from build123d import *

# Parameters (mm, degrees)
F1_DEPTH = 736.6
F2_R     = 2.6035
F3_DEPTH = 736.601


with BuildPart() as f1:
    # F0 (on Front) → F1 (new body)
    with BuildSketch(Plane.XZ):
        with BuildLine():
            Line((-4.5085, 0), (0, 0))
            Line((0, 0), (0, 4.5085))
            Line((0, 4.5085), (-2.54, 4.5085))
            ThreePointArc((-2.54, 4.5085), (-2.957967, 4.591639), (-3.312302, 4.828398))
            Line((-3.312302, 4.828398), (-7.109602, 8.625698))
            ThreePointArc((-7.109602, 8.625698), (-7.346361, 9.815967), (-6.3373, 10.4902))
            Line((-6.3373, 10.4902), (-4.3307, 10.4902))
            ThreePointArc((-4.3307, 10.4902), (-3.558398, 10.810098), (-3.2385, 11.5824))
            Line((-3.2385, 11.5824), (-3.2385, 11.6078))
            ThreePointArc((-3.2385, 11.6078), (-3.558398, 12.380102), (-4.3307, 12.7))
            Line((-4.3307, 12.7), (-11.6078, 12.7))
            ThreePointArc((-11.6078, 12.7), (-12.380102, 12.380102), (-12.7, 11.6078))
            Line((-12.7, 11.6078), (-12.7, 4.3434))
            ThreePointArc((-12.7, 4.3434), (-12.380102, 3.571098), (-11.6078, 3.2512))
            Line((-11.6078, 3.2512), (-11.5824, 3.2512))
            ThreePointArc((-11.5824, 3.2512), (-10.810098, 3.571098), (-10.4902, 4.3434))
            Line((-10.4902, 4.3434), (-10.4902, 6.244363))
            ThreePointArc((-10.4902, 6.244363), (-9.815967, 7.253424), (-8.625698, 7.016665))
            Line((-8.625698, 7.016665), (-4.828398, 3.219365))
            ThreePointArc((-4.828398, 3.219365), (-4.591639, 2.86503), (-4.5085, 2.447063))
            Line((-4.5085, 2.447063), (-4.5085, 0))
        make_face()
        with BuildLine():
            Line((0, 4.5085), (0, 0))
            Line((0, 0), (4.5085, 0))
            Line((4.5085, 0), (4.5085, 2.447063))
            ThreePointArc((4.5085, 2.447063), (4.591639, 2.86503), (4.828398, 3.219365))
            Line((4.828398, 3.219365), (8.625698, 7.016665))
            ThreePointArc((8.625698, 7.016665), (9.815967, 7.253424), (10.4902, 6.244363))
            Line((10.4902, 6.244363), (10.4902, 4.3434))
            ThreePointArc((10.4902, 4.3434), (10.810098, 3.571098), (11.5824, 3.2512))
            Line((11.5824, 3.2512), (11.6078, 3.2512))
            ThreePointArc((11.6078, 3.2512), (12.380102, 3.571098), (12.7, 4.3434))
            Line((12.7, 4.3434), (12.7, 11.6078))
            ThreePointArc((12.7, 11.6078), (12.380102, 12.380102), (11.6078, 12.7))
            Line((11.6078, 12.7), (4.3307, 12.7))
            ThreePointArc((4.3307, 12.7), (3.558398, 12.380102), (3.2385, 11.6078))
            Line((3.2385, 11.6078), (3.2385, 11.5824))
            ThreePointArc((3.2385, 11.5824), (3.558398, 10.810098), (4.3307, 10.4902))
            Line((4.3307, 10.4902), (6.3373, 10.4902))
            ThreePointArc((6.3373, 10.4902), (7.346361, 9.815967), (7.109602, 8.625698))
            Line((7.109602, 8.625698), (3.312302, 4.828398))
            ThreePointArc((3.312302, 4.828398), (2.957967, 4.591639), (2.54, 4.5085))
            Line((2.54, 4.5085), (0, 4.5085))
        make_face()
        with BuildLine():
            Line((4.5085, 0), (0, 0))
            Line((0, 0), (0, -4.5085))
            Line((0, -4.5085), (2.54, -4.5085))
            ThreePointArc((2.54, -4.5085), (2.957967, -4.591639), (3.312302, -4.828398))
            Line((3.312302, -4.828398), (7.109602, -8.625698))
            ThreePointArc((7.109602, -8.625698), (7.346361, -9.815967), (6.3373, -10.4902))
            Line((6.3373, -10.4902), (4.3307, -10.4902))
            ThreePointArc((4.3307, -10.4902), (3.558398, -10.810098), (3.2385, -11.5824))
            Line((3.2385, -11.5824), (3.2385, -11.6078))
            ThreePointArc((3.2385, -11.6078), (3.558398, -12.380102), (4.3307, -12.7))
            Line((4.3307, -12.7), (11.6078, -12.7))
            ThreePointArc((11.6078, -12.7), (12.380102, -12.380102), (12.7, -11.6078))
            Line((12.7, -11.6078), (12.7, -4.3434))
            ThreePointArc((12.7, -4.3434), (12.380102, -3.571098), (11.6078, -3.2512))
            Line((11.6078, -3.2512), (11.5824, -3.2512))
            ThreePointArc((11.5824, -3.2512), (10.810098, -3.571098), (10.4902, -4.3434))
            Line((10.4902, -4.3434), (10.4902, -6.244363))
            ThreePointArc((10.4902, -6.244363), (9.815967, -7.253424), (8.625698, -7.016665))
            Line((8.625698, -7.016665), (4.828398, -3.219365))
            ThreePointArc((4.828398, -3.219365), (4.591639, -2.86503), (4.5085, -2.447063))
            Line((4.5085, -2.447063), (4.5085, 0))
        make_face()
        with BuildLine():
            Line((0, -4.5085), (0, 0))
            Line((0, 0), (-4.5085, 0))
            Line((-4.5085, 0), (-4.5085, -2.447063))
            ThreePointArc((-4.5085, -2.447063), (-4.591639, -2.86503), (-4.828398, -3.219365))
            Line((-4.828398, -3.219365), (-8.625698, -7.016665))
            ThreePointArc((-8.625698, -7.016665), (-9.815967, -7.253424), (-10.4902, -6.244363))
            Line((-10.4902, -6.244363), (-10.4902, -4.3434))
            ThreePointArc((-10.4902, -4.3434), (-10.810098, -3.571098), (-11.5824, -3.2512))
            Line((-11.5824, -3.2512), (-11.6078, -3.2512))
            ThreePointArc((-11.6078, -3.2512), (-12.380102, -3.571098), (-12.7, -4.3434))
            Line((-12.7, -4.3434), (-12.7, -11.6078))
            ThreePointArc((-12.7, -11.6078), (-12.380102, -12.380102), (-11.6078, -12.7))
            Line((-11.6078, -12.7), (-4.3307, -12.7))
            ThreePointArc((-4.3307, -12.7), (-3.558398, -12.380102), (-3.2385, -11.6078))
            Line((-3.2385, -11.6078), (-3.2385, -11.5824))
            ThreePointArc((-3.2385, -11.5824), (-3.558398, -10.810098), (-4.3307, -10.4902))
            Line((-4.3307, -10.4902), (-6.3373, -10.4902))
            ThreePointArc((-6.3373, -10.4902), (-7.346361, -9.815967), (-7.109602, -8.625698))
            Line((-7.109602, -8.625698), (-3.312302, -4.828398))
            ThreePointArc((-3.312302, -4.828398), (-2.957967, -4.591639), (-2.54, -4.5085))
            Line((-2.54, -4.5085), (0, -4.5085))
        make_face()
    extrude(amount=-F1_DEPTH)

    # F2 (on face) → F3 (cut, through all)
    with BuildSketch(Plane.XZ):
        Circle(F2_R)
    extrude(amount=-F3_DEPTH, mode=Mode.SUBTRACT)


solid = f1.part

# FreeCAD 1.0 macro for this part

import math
import FreeCAD as App
import Part
import Sketcher
from FreeCAD import Vector
Q = App.Units.Quantity

doc = App.newDocument("Part")
body = doc.addObject("PartDesign::Body", "Body")

sketch1 = doc.addObject("Sketcher::SketchObject", "Sketch")
body.addObject(sketch1)
sketch1.AttachmentSupport = (doc.XZ_Plane, [""])
sketch1.MapMode = "FlatFace"
sketch1.addGeometry([
    Part.ArcOfCircle(Part.Circle(Vector(2.54, -5.601, 0), Vector(0, 0, 1), 1.092), math.radians(45), math.radians(90)),
    Part.LineSegment(Vector(3.312, -4.828, 0), Vector(7.11, -8.626, 0)),
    Part.ArcOfCircle(Part.Circle(Vector(6.337, -9.398, 0), Vector(0, 0, 1), 1.092), math.radians(-90), math.radians(45)),
    Part.LineSegment(Vector(6.337, -10.49, 0), Vector(4.331, -10.49, 0)),
    Part.ArcOfCircle(Part.Circle(Vector(4.331, -11.582, 0), Vector(0, 0, 1), 1.092), math.radians(90), math.radians(180)),
    Part.LineSegment(Vector(3.239, -11.582, 0), Vector(3.239, -11.608, 0)),
    Part.ArcOfCircle(Part.Circle(Vector(4.331, -11.608, 0), Vector(0, 0, 1), 1.092), math.radians(-180), math.radians(-90)),
    Part.LineSegment(Vector(4.331, -12.7, 0), Vector(11.608, -12.7, 0)),
    Part.ArcOfCircle(Part.Circle(Vector(11.608, -11.608, 0), Vector(0, 0, 1), 1.092), math.radians(-90), math.radians(0)),
    Part.LineSegment(Vector(12.7, -11.608, 0), Vector(12.7, -4.343, 0)),
    Part.ArcOfCircle(Part.Circle(Vector(11.608, -4.343, 0), Vector(0, 0, 1), 1.092), math.radians(0), math.radians(90)),
    Part.LineSegment(Vector(11.608, -3.251, 0), Vector(11.582, -3.251, 0)),
    Part.ArcOfCircle(Part.Circle(Vector(11.582, -4.343, 0), Vector(0, 0, 1), 1.092), math.radians(90), math.radians(180)),
    Part.LineSegment(Vector(10.49, -4.343, 0), Vector(10.49, -6.244, 0)),
    Part.ArcOfCircle(Part.Circle(Vector(9.398, -6.244, 0), Vector(0, 0, 1), 1.092), math.radians(-135), math.radians(0)),
    Part.LineSegment(Vector(8.626, -7.017, 0), Vector(4.828, -3.219, 0)),
    Part.ArcOfCircle(Part.Circle(Vector(5.601, -2.447, 0), Vector(0, 0, 1), 1.092), math.radians(-180), math.radians(-135)),
    Part.LineSegment(Vector(4.508, -2.447, 0), Vector(4.508, 2.447, 0)),
    Part.ArcOfCircle(Part.Circle(Vector(5.601, 2.447, 0), Vector(0, 0, 1), 1.092), math.radians(135), math.radians(180)),
    Part.LineSegment(Vector(4.828, 3.219, 0), Vector(8.626, 7.017, 0)),
    Part.ArcOfCircle(Part.Circle(Vector(9.398, 6.244, 0), Vector(0, 0, 1), 1.092), math.radians(0), math.radians(135)),
    Part.LineSegment(Vector(10.49, 6.244, 0), Vector(10.49, 4.343, 0)),
    Part.ArcOfCircle(Part.Circle(Vector(11.582, 4.343, 0), Vector(0, 0, 1), 1.092), math.radians(-180), math.radians(-90)),
    Part.LineSegment(Vector(11.582, 3.251, 0), Vector(11.608, 3.251, 0)),
    Part.ArcOfCircle(Part.Circle(Vector(11.608, 4.343, 0), Vector(0, 0, 1), 1.092), math.radians(-90), math.radians(0)),
    Part.LineSegment(Vector(12.7, 4.343, 0), Vector(12.7, 11.608, 0)),
    Part.ArcOfCircle(Part.Circle(Vector(11.608, 11.608, 0), Vector(0, 0, 1), 1.092), math.radians(0), math.radians(90)),
    Part.LineSegment(Vector(11.608, 12.7, 0), Vector(4.331, 12.7, 0)),
    Part.ArcOfCircle(Part.Circle(Vector(4.331, 11.608, 0), Vector(0, 0, 1), 1.092), math.radians(90), math.radians(180)),
    Part.LineSegment(Vector(3.239, 11.608, 0), Vector(3.239, 11.582, 0)),
    Part.ArcOfCircle(Part.Circle(Vector(4.331, 11.582, 0), Vector(0, 0, 1), 1.092), math.radians(-180), math.radians(-90)),
    Part.LineSegment(Vector(4.331, 10.49, 0), Vector(6.337, 10.49, 0)),
    Part.ArcOfCircle(Part.Circle(Vector(6.337, 9.398, 0), Vector(0, 0, 1), 1.092), math.radians(-45), math.radians(90)),
    Part.LineSegment(Vector(7.11, 8.626, 0), Vector(3.312, 4.828, 0)),
    Part.ArcOfCircle(Part.Circle(Vector(2.54, 5.601, 0), Vector(0, 0, 1), 1.092), math.radians(-90), math.radians(-45)),
    Part.LineSegment(Vector(2.54, 4.508, 0), Vector(-2.54, 4.508, 0)),
    Part.ArcOfCircle(Part.Circle(Vector(-2.54, 5.601, 0), Vector(0, 0, 1), 1.092), math.radians(-135), math.radians(-90)),
    Part.LineSegment(Vector(-3.312, 4.828, 0), Vector(-7.11, 8.626, 0)),
    Part.ArcOfCircle(Part.Circle(Vector(-6.337, 9.398, 0), Vector(0, 0, 1), 1.092), math.radians(90), math.radians(225)),
    Part.LineSegment(Vector(-6.337, 10.49, 0), Vector(-4.331, 10.49, 0)),
    Part.ArcOfCircle(Part.Circle(Vector(-4.331, 11.582, 0), Vector(0, 0, 1), 1.092), math.radians(-90), math.radians(0)),
    Part.LineSegment(Vector(-3.239, 11.582, 0), Vector(-3.239, 11.608, 0)),
    Part.ArcOfCircle(Part.Circle(Vector(-4.331, 11.608, 0), Vector(0, 0, 1), 1.092), math.radians(0), math.radians(90)),
    Part.LineSegment(Vector(-4.331, 12.7, 0), Vector(-11.608, 12.7, 0)),
    Part.ArcOfCircle(Part.Circle(Vector(-11.608, 11.608, 0), Vector(0, 0, 1), 1.092), math.radians(90), math.radians(180)),
    Part.LineSegment(Vector(-12.7, 11.608, 0), Vector(-12.7, 4.343, 0)),
    Part.ArcOfCircle(Part.Circle(Vector(-11.608, 4.343, 0), Vector(0, 0, 1), 1.092), math.radians(-180), math.radians(-90)),
    Part.LineSegment(Vector(-11.608, 3.251, 0), Vector(-11.582, 3.251, 0)),
    Part.ArcOfCircle(Part.Circle(Vector(-11.582, 4.343, 0), Vector(0, 0, 1), 1.092), math.radians(-90), math.radians(0)),
    Part.LineSegment(Vector(-10.49, 4.343, 0), Vector(-10.49, 6.244, 0)),
    Part.ArcOfCircle(Part.Circle(Vector(-9.398, 6.244, 0), Vector(0, 0, 1), 1.092), math.radians(45), math.radians(180)),
    Part.LineSegment(Vector(-8.626, 7.017, 0), Vector(-4.828, 3.219, 0)),
    Part.ArcOfCircle(Part.Circle(Vector(-5.601, 2.447, 0), Vector(0, 0, 1), 1.092), math.radians(0), math.radians(45)),
    Part.LineSegment(Vector(-4.508, 2.447, 0), Vector(-4.508, -2.447, 0)),
    Part.ArcOfCircle(Part.Circle(Vector(-5.601, -2.447, 0), Vector(0, 0, 1), 1.092), math.radians(-45), math.radians(0)),
    Part.LineSegment(Vector(-4.828, -3.219, 0), Vector(-8.626, -7.017, 0)),
    Part.ArcOfCircle(Part.Circle(Vector(-9.398, -6.244, 0), Vector(0, 0, 1), 1.092), math.radians(-180), math.radians(-45)),
    Part.LineSegment(Vector(-10.49, -6.244, 0), Vector(-10.49, -4.343, 0)),
    Part.ArcOfCircle(Part.Circle(Vector(-11.582, -4.343, 0), Vector(0, 0, 1), 1.092), math.radians(0), math.radians(90)),
    Part.LineSegment(Vector(-11.582, -3.251, 0), Vector(-11.608, -3.251, 0)),
    Part.ArcOfCircle(Part.Circle(Vector(-11.608, -4.343, 0), Vector(0, 0, 1), 1.092), math.radians(90), math.radians(180)),
    Part.LineSegment(Vector(-12.7, -4.343, 0), Vector(-12.7, -11.608, 0)),
    Part.ArcOfCircle(Part.Circle(Vector(-11.608, -11.608, 0), Vector(0, 0, 1), 1.092), math.radians(-180), math.radians(-90)),
    Part.LineSegment(Vector(-11.608, -12.7, 0), Vector(-4.331, -12.7, 0)),
    Part.ArcOfCircle(Part.Circle(Vector(-4.331, -11.608, 0), Vector(0, 0, 1), 1.092), math.radians(-90), math.radians(0)),
    Part.LineSegment(Vector(-3.239, -11.608, 0), Vector(-3.239, -11.582, 0)),
    Part.ArcOfCircle(Part.Circle(Vector(-4.331, -11.582, 0), Vector(0, 0, 1), 1.092), math.radians(0), math.radians(90)),
    Part.LineSegment(Vector(-4.331, -10.49, 0), Vector(-6.337, -10.49, 0)),
    Part.ArcOfCircle(Part.Circle(Vector(-6.337, -9.398, 0), Vector(0, 0, 1), 1.092), math.radians(135), math.radians(270)),
    Part.LineSegment(Vector(-7.11, -8.626, 0), Vector(-3.312, -4.828, 0)),
    Part.ArcOfCircle(Part.Circle(Vector(-2.54, -5.601, 0), Vector(0, 0, 1), 1.092), math.radians(90), math.radians(135)),
    Part.LineSegment(Vector(-2.54, -4.508, 0), Vector(2.54, -4.508, 0)),
], False)
sketch1.addConstraint([
    Sketcher.Constraint("Tangent", 0, 1, 1, 1),
    Sketcher.Constraint("Tangent", 1, 2, 2, 2),
    Sketcher.Constraint("Tangent", 2, 1, 3, 1),
    Sketcher.Constraint("Tangent", 3, 2, 4, 1),
    Sketcher.Constraint("Tangent", 4, 2, 5, 1),
    Sketcher.Constraint("Tangent", 5, 2, 6, 1),
    Sketcher.Constraint("Tangent", 6, 2, 7, 1),
    Sketcher.Constraint("Tangent", 7, 2, 8, 1),
    Sketcher.Constraint("Tangent", 8, 2, 9, 1),
    Sketcher.Constraint("Tangent", 9, 2, 10, 1),
    Sketcher.Constraint("Tangent", 10, 2, 11, 1),
    Sketcher.Constraint("Tangent", 11, 2, 12, 1),
    Sketcher.Constraint("Tangent", 12, 2, 13, 1),
    Sketcher.Constraint("Tangent", 13, 2, 14, 2),
    Sketcher.Constraint("Tangent", 14, 1, 15, 1),
    Sketcher.Constraint("Tangent", 15, 2, 16, 2),
    Sketcher.Constraint("Tangent", 16, 1, 17, 1),
    Sketcher.Constraint("Tangent", 17, 2, 18, 2),
    Sketcher.Constraint("Tangent", 18, 1, 19, 1),
    Sketcher.Constraint("Tangent", 19, 2, 20, 2),
    Sketcher.Constraint("Tangent", 20, 1, 21, 1),
    Sketcher.Constraint("Tangent", 21, 2, 22, 1),
    Sketcher.Constraint("Tangent", 22, 2, 23, 1),
    Sketcher.Constraint("Tangent", 23, 2, 24, 1),
    Sketcher.Constraint("Tangent", 24, 2, 25, 1),
    Sketcher.Constraint("Tangent", 25, 2, 26, 1),
    Sketcher.Constraint("Tangent", 26, 2, 27, 1),
    Sketcher.Constraint("Tangent", 27, 2, 28, 1),
    Sketcher.Constraint("Tangent", 28, 2, 29, 1),
    Sketcher.Constraint("Tangent", 29, 2, 30, 1),
    Sketcher.Constraint("Tangent", 30, 2, 31, 1),
    Sketcher.Constraint("Tangent", 31, 2, 32, 2),
    Sketcher.Constraint("Tangent", 32, 1, 33, 1),
    Sketcher.Constraint("Tangent", 33, 2, 34, 2),
    Sketcher.Constraint("Tangent", 34, 1, 35, 1),
    Sketcher.Constraint("Tangent", 35, 2, 36, 2),
    Sketcher.Constraint("Tangent", 36, 1, 37, 1),
    Sketcher.Constraint("Tangent", 37, 2, 38, 2),
    Sketcher.Constraint("Tangent", 38, 1, 39, 1),
    Sketcher.Constraint("Tangent", 39, 2, 40, 1),
    Sketcher.Constraint("Tangent", 40, 2, 41, 1),
    Sketcher.Constraint("Tangent", 41, 2, 42, 1),
    Sketcher.Constraint("Tangent", 42, 2, 43, 1),
    Sketcher.Constraint("Tangent", 43, 2, 44, 1),
    Sketcher.Constraint("Tangent", 44, 2, 45, 1),
    Sketcher.Constraint("Tangent", 45, 2, 46, 1),
    Sketcher.Constraint("Tangent", 46, 2, 47, 1),
    Sketcher.Constraint("Tangent", 47, 2, 48, 1),
    Sketcher.Constraint("Tangent", 48, 2, 49, 1),
    Sketcher.Constraint("Tangent", 49, 2, 50, 2),
    Sketcher.Constraint("Tangent", 50, 1, 51, 1),
    Sketcher.Constraint("Tangent", 51, 2, 52, 2),
    Sketcher.Constraint("Tangent", 52, 1, 53, 1),
    Sketcher.Constraint("Tangent", 53, 2, 54, 2),
    Sketcher.Constraint("Tangent", 54, 1, 55, 1),
    Sketcher.Constraint("Tangent", 55, 2, 56, 2),
    Sketcher.Constraint("Tangent", 56, 1, 57, 1),
    Sketcher.Constraint("Tangent", 57, 2, 58, 1),
    Sketcher.Constraint("Tangent", 58, 2, 59, 1),
    Sketcher.Constraint("Tangent", 59, 2, 60, 1),
    Sketcher.Constraint("Tangent", 60, 2, 61, 1),
    Sketcher.Constraint("Tangent", 61, 2, 62, 1),
    Sketcher.Constraint("Tangent", 62, 2, 63, 1),
    Sketcher.Constraint("Tangent", 63, 2, 64, 1),
    Sketcher.Constraint("Tangent", 64, 2, 65, 1),
    Sketcher.Constraint("Tangent", 65, 2, 66, 1),
    Sketcher.Constraint("Tangent", 66, 2, 67, 1),
    Sketcher.Constraint("Tangent", 67, 2, 68, 2),
    Sketcher.Constraint("Tangent", 68, 1, 69, 1),
    Sketcher.Constraint("Tangent", 69, 2, 70, 2),
    Sketcher.Constraint("Tangent", 70, 1, 71, 1),
    Sketcher.Constraint("Tangent", 71, 2, 0, 2),
    Sketcher.Constraint("Horizontal", 3),
    Sketcher.Constraint("Vertical", 5),
    Sketcher.Constraint("Horizontal", 7),
    Sketcher.Constraint("Vertical", 9),
    Sketcher.Constraint("Horizontal", 11),
    Sketcher.Constraint("Vertical", 13),
    Sketcher.Constraint("Vertical", 17),
    Sketcher.Constraint("Vertical", 21),
    Sketcher.Constraint("Horizontal", 23),
    Sketcher.Constraint("Vertical", 25),
    Sketcher.Constraint("Horizontal", 27),
    Sketcher.Constraint("Vertical", 29),
    Sketcher.Constraint("Horizontal", 31),
    Sketcher.Constraint("Horizontal", 35),
    Sketcher.Constraint("Horizontal", 39),
    Sketcher.Constraint("Vertical", 41),
    Sketcher.Constraint("Horizontal", 43),
    Sketcher.Constraint("Vertical", 45),
    Sketcher.Constraint("Horizontal", 47),
    Sketcher.Constraint("Vertical", 49),
    Sketcher.Constraint("Vertical", 53),
    Sketcher.Constraint("Vertical", 57),
    Sketcher.Constraint("Horizontal", 59),
    Sketcher.Constraint("Vertical", 61),
    Sketcher.Constraint("Horizontal", 63),
    Sketcher.Constraint("Vertical", 65),
    Sketcher.Constraint("Horizontal", 67),
    Sketcher.Constraint("Horizontal", 71),
    Sketcher.Constraint("Equal", 0, 2),
    Sketcher.Constraint("Equal", 2, 4),
    Sketcher.Constraint("Equal", 4, 6),
    Sketcher.Constraint("Equal", 6, 8),
    Sketcher.Constraint("Equal", 8, 10),
    Sketcher.Constraint("Equal", 10, 12),
    Sketcher.Constraint("Equal", 12, 14),
    Sketcher.Constraint("Equal", 14, 16),
    Sketcher.Constraint("Equal", 16, 18),
    Sketcher.Constraint("Equal", 18, 20),
    Sketcher.Constraint("Equal", 20, 22),
    Sketcher.Constraint("Equal", 22, 24),
    Sketcher.Constraint("Equal", 24, 26),
    Sketcher.Constraint("Equal", 26, 28),
    Sketcher.Constraint("Equal", 28, 30),
    Sketcher.Constraint("Equal", 30, 32),
    Sketcher.Constraint("Equal", 32, 34),
    Sketcher.Constraint("Equal", 34, 36),
    Sketcher.Constraint("Equal", 36, 38),
    Sketcher.Constraint("Equal", 38, 40),
    Sketcher.Constraint("Equal", 40, 42),
    Sketcher.Constraint("Equal", 42, 44),
    Sketcher.Constraint("Equal", 44, 46),
    Sketcher.Constraint("Equal", 46, 48),
    Sketcher.Constraint("Equal", 48, 50),
    Sketcher.Constraint("Equal", 50, 52),
    Sketcher.Constraint("Equal", 52, 54),
    Sketcher.Constraint("Equal", 54, 56),
    Sketcher.Constraint("Equal", 56, 58),
    Sketcher.Constraint("Equal", 58, 60),
    Sketcher.Constraint("Equal", 60, 62),
    Sketcher.Constraint("Equal", 62, 64),
    Sketcher.Constraint("Equal", 64, 66),
    Sketcher.Constraint("Equal", 66, 68),
    Sketcher.Constraint("Equal", 68, 70),
    Sketcher.Constraint("Symmetric", 0, 3, 36, 3, -1, 1),
    Sketcher.Constraint("Symmetric", 2, 3, 38, 3, -1, 1),
    Sketcher.Constraint("Symmetric", 6, 3, 42, 3, -1, 1),
    Sketcher.Constraint("Symmetric", 10, 3, 46, 3, -1, 1),
    Sketcher.Constraint("Symmetric", 14, 3, 50, 3, -1, 1),
    Sketcher.Constraint("Symmetric", 16, 3, 52, 3, -1, 1),
    Sketcher.Constraint("Symmetric", 20, 3, 56, 3, -1, 1),
    Sketcher.Constraint("Symmetric", 24, 3, 60, 3, -1, 1),
    Sketcher.Constraint("Symmetric", 28, 3, 64, 3, -1, 1),
    Sketcher.Constraint("Symmetric", 32, 3, 68, 3, -1, 1),
    Sketcher.Constraint("Symmetric", 32, 3, 38, 3, -2),
    Sketcher.Constraint("Symmetric", 28, 3, 42, 3, -2),
    Sketcher.Constraint("Symmetric", 24, 3, 46, 3, -2),
    Sketcher.Constraint("Symmetric", 20, 3, 50, 3, -2),
    Sketcher.Constraint("Parallel", 1, 15),
    Sketcher.Constraint("Perpendicular", 15, 19),
    Sketcher.Constraint("Parallel", 19, 33),
    Sketcher.Constraint("Perpendicular", 51, 55),
    Sketcher.Constraint("Parallel", 55, 69),
    Sketcher.Constraint("Horizontal", 18, 3, 52, 3),
    Sketcher.Constraint("Equal", 59, 5),
    Sketcher.Constraint("Equal", 1, 15),
    Sketcher.Constraint("DistanceX", 35, 2, 35, 1, Q("0.2 in")),
    Sketcher.Constraint("Radius", 0, Q("0.0430001 in")),
    Sketcher.Constraint("DistanceY", 6, 2, -1, 1, Q("0.5 in")),
    Sketcher.Constraint("DistanceX", -1, 1, 8, 2, Q("0.5 in")),
    Sketcher.Constraint("DistanceX", 3, 2, 3, 1, Q("0.079 in")),
    Sketcher.Constraint("DistanceX", 11, 2, 11, 1, Q("0.001 in")),
    Sketcher.Constraint("DistanceY", 9, 1, 9, 2, Q("0.286 in")),
    Sketcher.Constraint("DistanceX", 7, 1, 7, 2, Q("0.2865 in")),
    Sketcher.Constraint("DistanceY", 13, 2, 13, 1, Q("1.900963 mm")),
])
pad1 = doc.addObject("PartDesign::Pad", "Pad")
body.addObject(pad1)
pad1.Profile = sketch1
pad1.Length = Q("29 in")
pad1.Reversed = True

sketch2 = doc.addObject("Sketcher::SketchObject", "Sketch001")
body.addObject(sketch2)
sketch2.AttachmentSupport = (doc.XZ_Plane, [""])
sketch2.MapMode = "FlatFace"
sketch2.addGeometry(Part.Circle(Vector(0, 0, 0), Vector(0, 0, 1), 2.6), False)
sketch2.addConstraint([
    Sketcher.Constraint("Coincident", 0, 3, -1, 1),
    Sketcher.Constraint("Diameter", 0, Q("0.205 in")),
])
pocket1 = doc.addObject("PartDesign::Pocket", "Pocket")
body.addObject(pocket1)
pocket1.Profile = sketch2
pocket1.Type = "ThroughAll"

doc.recompute()
